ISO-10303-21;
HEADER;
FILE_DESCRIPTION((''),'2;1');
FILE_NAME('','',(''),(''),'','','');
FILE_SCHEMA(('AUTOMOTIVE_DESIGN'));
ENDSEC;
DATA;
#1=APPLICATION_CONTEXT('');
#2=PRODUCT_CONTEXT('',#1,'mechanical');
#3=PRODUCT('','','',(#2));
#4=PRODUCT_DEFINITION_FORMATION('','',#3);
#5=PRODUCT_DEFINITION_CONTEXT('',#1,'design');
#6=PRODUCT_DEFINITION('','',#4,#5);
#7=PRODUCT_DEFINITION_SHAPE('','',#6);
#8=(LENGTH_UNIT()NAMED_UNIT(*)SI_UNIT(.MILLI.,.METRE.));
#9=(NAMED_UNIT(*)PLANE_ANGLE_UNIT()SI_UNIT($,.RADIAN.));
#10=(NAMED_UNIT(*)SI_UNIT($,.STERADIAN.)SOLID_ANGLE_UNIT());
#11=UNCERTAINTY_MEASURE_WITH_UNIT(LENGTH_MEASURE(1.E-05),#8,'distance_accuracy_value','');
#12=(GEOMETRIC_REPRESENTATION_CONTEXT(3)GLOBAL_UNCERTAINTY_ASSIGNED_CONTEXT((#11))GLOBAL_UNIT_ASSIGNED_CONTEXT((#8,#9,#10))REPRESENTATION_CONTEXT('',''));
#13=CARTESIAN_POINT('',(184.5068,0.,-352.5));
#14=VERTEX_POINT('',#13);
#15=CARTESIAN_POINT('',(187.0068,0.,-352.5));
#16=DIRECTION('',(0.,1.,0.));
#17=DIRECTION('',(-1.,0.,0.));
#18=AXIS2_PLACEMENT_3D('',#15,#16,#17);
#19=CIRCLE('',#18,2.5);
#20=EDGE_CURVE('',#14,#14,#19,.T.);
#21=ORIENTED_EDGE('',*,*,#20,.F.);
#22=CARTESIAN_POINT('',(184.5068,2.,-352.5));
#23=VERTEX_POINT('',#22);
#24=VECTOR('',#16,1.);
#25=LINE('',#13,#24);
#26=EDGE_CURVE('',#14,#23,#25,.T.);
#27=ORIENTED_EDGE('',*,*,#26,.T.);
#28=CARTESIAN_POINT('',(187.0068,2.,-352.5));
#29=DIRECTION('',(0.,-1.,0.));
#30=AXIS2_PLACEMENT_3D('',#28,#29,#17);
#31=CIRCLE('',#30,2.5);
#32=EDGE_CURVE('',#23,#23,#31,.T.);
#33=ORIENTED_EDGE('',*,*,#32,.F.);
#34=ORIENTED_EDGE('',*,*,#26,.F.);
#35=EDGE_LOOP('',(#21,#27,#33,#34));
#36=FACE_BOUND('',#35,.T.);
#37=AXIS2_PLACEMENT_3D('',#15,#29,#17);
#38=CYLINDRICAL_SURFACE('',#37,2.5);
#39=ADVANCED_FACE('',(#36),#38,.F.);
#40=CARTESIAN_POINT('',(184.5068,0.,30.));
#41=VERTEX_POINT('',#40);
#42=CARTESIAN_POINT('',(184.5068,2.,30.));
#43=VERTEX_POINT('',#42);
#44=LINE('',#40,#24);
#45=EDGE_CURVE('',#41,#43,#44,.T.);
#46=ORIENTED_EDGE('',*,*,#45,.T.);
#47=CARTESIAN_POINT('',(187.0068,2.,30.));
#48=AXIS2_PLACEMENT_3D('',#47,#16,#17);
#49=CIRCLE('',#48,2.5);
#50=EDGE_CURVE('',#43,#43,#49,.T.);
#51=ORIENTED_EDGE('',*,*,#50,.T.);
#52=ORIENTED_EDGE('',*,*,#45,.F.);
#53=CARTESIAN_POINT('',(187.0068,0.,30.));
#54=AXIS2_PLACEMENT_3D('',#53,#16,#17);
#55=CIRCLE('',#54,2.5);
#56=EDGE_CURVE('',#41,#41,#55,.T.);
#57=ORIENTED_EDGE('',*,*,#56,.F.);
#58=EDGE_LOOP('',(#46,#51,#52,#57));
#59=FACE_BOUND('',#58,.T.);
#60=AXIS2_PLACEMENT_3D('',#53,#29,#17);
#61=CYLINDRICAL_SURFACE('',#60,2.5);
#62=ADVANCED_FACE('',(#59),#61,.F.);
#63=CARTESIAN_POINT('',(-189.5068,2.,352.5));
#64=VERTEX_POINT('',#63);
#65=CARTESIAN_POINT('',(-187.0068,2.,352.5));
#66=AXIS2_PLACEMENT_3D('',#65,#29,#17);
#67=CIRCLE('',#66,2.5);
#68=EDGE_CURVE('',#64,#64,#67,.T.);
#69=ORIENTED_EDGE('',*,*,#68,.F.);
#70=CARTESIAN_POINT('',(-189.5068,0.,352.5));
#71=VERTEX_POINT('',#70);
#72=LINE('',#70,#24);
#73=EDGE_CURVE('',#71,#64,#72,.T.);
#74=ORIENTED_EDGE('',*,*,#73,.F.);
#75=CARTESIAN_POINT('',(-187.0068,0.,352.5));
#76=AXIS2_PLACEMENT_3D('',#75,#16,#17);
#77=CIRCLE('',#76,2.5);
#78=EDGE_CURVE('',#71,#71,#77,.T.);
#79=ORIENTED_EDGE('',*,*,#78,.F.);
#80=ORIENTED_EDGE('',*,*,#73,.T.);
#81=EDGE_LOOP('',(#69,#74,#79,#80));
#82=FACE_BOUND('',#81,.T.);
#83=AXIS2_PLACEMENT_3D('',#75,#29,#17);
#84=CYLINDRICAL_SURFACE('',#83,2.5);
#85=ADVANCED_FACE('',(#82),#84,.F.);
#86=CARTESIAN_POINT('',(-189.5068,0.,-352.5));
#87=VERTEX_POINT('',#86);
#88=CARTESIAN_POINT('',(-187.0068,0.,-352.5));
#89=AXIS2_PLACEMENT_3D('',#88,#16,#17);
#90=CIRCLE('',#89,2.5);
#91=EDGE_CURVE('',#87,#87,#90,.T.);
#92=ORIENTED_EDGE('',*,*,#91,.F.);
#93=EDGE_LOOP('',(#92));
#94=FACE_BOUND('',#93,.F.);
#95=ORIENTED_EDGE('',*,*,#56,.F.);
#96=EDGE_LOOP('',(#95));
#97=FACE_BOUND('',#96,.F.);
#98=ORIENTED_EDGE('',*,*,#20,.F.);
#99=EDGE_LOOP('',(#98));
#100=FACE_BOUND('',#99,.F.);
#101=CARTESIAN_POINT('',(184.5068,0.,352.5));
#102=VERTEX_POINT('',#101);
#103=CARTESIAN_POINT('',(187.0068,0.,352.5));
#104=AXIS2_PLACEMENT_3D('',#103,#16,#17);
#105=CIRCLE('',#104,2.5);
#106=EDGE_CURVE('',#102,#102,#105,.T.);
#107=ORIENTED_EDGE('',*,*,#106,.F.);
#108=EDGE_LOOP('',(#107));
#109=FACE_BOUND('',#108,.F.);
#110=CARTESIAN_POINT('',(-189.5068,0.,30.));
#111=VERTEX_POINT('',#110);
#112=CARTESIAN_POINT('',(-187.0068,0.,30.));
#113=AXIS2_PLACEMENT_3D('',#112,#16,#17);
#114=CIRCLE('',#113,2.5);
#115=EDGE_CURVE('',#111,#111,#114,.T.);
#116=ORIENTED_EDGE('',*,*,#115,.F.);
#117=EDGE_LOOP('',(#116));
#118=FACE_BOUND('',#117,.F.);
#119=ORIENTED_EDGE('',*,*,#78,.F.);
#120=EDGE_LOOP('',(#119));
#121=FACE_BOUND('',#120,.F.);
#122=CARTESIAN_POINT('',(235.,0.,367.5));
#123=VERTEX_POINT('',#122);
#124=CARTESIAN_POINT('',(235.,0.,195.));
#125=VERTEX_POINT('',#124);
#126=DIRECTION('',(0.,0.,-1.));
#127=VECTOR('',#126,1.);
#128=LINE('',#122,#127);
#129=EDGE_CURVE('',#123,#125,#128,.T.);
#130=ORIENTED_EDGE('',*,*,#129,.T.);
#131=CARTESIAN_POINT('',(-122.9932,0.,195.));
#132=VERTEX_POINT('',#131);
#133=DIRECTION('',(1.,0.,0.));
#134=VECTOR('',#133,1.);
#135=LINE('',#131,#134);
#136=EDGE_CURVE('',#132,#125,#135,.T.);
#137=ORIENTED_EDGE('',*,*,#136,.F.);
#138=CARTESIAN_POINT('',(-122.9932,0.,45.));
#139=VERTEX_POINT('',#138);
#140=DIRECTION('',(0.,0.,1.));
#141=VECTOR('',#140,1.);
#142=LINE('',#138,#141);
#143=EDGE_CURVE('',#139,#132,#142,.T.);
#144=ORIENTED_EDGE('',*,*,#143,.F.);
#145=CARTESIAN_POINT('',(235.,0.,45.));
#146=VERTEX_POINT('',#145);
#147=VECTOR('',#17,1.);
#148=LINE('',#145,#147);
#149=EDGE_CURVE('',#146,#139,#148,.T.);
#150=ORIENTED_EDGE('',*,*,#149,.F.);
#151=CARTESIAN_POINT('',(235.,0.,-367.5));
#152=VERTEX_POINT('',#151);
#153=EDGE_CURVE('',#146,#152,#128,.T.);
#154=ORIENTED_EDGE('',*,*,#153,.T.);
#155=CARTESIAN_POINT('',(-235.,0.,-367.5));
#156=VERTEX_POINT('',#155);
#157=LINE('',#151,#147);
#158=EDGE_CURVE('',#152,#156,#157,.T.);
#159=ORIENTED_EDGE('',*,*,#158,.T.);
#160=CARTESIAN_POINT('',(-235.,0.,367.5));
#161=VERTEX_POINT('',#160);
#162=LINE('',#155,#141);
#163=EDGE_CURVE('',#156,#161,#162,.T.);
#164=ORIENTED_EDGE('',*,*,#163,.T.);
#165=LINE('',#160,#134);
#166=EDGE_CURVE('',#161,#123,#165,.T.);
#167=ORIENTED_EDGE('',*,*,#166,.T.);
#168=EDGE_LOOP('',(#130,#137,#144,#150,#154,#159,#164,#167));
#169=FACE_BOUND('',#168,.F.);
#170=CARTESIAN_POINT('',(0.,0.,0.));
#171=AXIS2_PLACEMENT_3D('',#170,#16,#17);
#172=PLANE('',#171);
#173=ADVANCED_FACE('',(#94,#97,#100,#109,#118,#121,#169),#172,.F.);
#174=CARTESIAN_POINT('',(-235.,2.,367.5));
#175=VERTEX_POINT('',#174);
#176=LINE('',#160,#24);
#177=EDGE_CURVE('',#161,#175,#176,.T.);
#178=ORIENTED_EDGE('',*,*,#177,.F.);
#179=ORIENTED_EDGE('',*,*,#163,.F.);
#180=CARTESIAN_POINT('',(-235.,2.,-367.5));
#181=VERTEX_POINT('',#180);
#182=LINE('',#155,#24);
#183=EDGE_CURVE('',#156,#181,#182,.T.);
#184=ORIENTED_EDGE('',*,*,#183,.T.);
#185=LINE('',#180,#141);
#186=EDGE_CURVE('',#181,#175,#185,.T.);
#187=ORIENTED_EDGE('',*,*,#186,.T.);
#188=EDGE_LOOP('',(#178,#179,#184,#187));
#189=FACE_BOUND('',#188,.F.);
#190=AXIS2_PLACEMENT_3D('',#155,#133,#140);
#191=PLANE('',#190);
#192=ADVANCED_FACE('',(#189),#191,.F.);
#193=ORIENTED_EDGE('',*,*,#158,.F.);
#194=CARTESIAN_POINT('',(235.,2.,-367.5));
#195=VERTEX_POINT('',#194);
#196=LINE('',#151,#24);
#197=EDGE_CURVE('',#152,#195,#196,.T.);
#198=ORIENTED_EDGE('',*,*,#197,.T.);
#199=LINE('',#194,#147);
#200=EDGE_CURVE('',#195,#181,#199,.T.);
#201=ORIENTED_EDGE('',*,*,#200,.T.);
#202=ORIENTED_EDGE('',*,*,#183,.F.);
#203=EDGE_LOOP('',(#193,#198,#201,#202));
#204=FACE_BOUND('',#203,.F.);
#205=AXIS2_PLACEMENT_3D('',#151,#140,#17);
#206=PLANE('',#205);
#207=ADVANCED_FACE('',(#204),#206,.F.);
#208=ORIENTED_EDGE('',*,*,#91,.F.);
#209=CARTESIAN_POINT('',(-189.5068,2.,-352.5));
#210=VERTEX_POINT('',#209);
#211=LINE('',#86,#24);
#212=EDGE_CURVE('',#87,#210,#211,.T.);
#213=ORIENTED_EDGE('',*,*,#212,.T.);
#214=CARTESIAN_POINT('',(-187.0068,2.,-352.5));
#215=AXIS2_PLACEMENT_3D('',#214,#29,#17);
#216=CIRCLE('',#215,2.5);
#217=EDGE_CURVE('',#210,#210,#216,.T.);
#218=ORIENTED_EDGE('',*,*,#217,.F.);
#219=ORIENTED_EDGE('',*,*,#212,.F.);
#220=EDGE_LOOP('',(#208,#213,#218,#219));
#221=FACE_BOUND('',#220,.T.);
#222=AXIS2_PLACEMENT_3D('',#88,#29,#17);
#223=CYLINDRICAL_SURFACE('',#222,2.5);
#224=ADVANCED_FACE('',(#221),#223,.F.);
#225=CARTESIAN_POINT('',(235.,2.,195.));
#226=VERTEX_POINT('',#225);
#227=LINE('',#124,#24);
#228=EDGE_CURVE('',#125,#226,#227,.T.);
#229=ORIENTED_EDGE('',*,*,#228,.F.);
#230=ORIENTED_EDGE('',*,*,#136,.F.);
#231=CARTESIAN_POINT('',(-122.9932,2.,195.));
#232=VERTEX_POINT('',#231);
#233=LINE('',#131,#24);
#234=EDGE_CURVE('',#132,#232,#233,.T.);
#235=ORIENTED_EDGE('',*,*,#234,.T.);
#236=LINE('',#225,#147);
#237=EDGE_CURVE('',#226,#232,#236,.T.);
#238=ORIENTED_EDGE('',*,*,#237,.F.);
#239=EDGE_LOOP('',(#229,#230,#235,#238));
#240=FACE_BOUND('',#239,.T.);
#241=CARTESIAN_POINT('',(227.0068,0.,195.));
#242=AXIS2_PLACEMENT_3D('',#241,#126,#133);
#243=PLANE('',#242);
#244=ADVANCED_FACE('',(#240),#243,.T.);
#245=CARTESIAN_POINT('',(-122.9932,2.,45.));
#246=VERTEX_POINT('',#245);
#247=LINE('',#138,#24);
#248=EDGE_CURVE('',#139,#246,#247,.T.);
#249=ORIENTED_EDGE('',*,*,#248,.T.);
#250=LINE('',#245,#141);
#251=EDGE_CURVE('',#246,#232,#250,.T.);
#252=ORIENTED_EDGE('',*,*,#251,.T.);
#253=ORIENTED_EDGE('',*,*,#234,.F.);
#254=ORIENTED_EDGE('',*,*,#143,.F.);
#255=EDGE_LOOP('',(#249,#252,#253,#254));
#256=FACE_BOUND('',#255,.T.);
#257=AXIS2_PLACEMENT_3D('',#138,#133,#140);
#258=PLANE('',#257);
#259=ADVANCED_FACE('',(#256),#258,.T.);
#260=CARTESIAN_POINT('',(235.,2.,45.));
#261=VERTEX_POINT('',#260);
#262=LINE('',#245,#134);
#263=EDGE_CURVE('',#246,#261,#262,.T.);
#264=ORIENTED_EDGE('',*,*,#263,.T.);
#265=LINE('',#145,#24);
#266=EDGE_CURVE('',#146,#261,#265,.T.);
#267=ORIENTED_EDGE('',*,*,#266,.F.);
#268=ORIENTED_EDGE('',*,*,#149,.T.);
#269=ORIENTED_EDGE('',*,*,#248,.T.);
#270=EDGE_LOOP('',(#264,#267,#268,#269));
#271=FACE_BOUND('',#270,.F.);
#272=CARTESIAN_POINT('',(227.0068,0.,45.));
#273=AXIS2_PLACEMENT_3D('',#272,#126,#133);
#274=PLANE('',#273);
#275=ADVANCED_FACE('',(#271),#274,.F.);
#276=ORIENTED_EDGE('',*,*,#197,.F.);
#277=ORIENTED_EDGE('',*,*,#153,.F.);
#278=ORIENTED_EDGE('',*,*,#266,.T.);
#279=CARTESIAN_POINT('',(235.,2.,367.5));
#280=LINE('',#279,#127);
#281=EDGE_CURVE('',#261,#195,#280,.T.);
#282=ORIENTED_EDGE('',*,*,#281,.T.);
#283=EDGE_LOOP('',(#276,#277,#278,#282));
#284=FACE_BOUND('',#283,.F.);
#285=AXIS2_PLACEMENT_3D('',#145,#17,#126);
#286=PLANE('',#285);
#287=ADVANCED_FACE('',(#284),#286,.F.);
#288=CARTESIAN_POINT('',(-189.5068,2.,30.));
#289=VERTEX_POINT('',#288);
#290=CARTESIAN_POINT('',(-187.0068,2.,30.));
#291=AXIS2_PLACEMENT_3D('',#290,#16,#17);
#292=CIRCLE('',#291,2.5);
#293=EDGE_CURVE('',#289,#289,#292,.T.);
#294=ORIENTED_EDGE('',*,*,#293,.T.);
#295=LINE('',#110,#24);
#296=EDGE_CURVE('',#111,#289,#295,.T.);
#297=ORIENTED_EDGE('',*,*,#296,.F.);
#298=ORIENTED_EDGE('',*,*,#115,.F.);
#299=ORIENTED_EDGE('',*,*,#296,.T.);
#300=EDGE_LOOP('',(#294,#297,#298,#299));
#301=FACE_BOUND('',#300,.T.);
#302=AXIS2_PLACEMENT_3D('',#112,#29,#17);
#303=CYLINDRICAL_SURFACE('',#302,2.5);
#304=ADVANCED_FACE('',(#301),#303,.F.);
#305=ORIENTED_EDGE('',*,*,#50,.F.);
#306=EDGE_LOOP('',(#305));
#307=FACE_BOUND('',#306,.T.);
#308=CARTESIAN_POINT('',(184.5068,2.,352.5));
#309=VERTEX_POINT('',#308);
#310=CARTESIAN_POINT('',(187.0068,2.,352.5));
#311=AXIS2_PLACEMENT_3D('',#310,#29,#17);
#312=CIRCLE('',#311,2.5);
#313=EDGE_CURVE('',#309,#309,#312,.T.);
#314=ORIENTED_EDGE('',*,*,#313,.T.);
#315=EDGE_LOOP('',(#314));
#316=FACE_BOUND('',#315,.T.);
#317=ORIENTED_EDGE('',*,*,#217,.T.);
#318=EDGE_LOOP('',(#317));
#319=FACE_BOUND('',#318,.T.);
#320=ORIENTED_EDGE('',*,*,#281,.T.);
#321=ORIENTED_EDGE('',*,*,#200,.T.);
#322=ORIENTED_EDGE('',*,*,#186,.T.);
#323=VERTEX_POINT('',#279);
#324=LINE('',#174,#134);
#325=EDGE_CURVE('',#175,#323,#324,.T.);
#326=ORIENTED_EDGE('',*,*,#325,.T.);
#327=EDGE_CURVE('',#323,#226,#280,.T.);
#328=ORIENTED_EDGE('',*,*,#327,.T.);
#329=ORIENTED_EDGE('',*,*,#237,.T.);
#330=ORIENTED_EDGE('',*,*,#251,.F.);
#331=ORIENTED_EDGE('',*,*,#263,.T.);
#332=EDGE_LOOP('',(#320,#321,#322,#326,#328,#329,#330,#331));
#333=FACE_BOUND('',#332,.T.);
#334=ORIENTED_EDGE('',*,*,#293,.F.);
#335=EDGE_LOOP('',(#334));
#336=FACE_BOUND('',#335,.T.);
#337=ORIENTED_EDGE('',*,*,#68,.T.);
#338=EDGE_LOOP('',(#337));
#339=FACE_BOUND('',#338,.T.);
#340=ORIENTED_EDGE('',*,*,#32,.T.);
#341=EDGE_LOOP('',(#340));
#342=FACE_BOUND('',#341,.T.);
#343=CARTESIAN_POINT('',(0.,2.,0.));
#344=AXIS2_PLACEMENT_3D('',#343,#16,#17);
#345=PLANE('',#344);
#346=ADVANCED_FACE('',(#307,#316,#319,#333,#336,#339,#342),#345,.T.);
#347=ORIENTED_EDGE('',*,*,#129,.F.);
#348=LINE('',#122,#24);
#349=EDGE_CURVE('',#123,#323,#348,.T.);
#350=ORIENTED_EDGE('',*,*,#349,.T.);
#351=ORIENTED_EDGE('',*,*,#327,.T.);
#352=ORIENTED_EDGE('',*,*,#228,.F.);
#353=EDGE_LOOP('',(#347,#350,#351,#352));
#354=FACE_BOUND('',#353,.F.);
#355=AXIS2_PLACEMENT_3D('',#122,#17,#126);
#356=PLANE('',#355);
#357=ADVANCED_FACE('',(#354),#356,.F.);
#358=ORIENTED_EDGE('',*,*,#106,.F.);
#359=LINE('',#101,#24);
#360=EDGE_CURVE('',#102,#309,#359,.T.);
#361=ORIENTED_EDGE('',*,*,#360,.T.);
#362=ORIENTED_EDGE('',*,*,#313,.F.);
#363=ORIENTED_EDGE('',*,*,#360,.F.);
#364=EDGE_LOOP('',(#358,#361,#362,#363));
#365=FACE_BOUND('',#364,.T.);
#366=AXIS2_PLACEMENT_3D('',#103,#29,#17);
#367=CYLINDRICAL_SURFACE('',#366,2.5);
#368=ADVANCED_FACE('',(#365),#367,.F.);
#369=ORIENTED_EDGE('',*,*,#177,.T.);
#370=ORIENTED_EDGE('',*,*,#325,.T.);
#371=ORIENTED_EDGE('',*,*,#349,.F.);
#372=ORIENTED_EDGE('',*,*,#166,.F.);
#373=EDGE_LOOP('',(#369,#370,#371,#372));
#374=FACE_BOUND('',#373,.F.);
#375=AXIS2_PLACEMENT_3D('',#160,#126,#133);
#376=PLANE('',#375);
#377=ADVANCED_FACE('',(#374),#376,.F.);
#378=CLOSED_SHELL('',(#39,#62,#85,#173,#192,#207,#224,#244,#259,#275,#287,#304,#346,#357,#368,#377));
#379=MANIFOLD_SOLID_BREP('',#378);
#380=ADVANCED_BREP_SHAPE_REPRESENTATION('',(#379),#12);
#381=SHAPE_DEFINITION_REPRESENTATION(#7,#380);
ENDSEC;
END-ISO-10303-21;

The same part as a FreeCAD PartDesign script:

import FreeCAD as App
import Part
import Sketcher
from FreeCAD import Vector

doc = App.newDocument("Part")
params = doc.addObject("Spreadsheet::Sheet", "Params")
for row, (alias, value) in enumerate([
    ("sketch1_diameter", "5 mm"),
    ("sketch1_width", "470 mm"),
    ("sketch1_height", "735 mm"),
    ("sketch1_height2", "150 mm"),
    ("sketch1_height3", "172.5 mm"),
    ("pad1_length", "2 mm"),
], start=1):
    params.set(f"A{row}", alias)
    params.set(f"B{row}", "=" + value)
    params.setAlias(f"B{row}", alias)

body = doc.addObject("PartDesign::Body", "Body")

sketch1 = body.newObject("Sketcher::SketchObject", "Sketch")
sketch1.AttachmentSupport = (doc.getObject("XZ_Plane"), [""])
sketch1.MapMode = "FlatFace"
sketch1.addGeometry([
    Part.LineSegment(Vector(-235, -367.5, 0), Vector(-235, 367.5, 0)),
    Part.LineSegment(Vector(-235, 367.5, 0), Vector(235, 367.5, 0)),
    Part.LineSegment(Vector(235, 367.5, 0), Vector(235, 195, 0)),
    Part.LineSegment(Vector(235, 195, 0), Vector(-123, 195, 0)),
    Part.LineSegment(Vector(-123, 195, 0), Vector(-123, 45, 0)),
    Part.LineSegment(Vector(-123, 45, 0), Vector(235, 45, 0)),
    Part.LineSegment(Vector(235, 45, 0), Vector(235, -367.5, 0)),
    Part.LineSegment(Vector(235, -367.5, 0), Vector(-235, -367.5, 0)),
    Part.Circle(Vector(187, -352.5, 0), Vector(0, 0, 1), 2.5),
    Part.Circle(Vector(-187, -352.5, 0), Vector(0, 0, 1), 2.5),
    Part.Circle(Vector(187, 30, 0), Vector(0, 0, 1), 2.5),
    Part.Circle(Vector(187, 352.5, 0), Vector(0, 0, 1), 2.5),
    Part.Circle(Vector(-187, 30, 0), Vector(0, 0, 1), 2.5),
    Part.Circle(Vector(-187, 352.5, 0), Vector(0, 0, 1), 2.5),
], False)
sketch1.addConstraint([
    Sketcher.Constraint("Coincident", 0, 2, 1, 1),
    Sketcher.Constraint("Coincident", 1, 2, 2, 1),
    Sketcher.Constraint("Coincident", 2, 2, 3, 1),
    Sketcher.Constraint("Coincident", 3, 2, 4, 1),
    Sketcher.Constraint("Coincident", 4, 2, 5, 1),
    Sketcher.Constraint("Coincident", 5, 2, 6, 1),
    Sketcher.Constraint("Coincident", 6, 2, 7, 1),
    Sketcher.Constraint("Coincident", 7, 2, 0, 1),
    Sketcher.Constraint("Vertical", 0),
    Sketcher.Constraint("Horizontal", 1),
    Sketcher.Constraint("Vertical", 2),
    Sketcher.Constraint("Horizontal", 3),
    Sketcher.Constraint("Vertical", 4),
    Sketcher.Constraint("Horizontal", 5),
    Sketcher.Constraint("Vertical", 6),
    Sketcher.Constraint("Horizontal", 7),
    Sketcher.Constraint("Equal", 8, 9),
    Sketcher.Constraint("Equal", 9, 10),
    Sketcher.Constraint("Equal", 10, 11),
    Sketcher.Constraint("Equal", 11, 12),
    Sketcher.Constraint("Equal", 12, 13),
    Sketcher.Constraint("Symmetric", 9, 3, 11, 3, -1, 1),
    Sketcher.Constraint("Symmetric", 8, 3, 13, 3, -1, 1),
    Sketcher.Constraint("Symmetric", 0, 2, 6, 2, -1, 1),
    Sketcher.Constraint("Symmetric", 8, 3, 9, 3, -2),
    Sketcher.Constraint("Symmetric", 10, 3, 12, 3, -2),
    Sketcher.Constraint("Vertical", 8, 3, 10, 3),
    Sketcher.Constraint("Vertical", 2, 2, 5, 2),
    Sketcher.Constraint("Diameter", 8, 5.0),
    Sketcher.Constraint("DistanceX", 1, 1, 1, 2, 470.0),
    Sketcher.Constraint("DistanceY", 0, 1, 0, 2, 735.0),
    Sketcher.Constraint("DistanceY", 4, 2, 4, 1, 150.0),
    Sketcher.Constraint("DistanceY", 6, 2, 10, 3, 397.5),
    Sketcher.Constraint("DistanceY", 2, 2, 2, 1, 172.5),
    Sketcher.Constraint("DistanceY", 8, 3, 11, 3, 705.0),
    Sketcher.Constraint("DistanceX", 3, 2, 11, 3, 310.0),
    Sketcher.Constraint("DistanceX", 3, 2, 3, 1, 357.9932),
])
sketch1.setExpression("Constraints[28]", "Params.sketch1_diameter")
sketch1.setExpression("Constraints[29]", "Params.sketch1_width")
sketch1.setExpression("Constraints[30]", "Params.sketch1_height")
sketch1.setExpression("Constraints[31]", "Params.sketch1_height2")
sketch1.setExpression("Constraints[33]", "Params.sketch1_height3")
pad1 = body.newObject("PartDesign::Pad", "Pad")
pad1.Profile = sketch1
pad1.setExpression("Length", "Params.pad1_length")
pad1.Reversed = True

doc.recompute()
